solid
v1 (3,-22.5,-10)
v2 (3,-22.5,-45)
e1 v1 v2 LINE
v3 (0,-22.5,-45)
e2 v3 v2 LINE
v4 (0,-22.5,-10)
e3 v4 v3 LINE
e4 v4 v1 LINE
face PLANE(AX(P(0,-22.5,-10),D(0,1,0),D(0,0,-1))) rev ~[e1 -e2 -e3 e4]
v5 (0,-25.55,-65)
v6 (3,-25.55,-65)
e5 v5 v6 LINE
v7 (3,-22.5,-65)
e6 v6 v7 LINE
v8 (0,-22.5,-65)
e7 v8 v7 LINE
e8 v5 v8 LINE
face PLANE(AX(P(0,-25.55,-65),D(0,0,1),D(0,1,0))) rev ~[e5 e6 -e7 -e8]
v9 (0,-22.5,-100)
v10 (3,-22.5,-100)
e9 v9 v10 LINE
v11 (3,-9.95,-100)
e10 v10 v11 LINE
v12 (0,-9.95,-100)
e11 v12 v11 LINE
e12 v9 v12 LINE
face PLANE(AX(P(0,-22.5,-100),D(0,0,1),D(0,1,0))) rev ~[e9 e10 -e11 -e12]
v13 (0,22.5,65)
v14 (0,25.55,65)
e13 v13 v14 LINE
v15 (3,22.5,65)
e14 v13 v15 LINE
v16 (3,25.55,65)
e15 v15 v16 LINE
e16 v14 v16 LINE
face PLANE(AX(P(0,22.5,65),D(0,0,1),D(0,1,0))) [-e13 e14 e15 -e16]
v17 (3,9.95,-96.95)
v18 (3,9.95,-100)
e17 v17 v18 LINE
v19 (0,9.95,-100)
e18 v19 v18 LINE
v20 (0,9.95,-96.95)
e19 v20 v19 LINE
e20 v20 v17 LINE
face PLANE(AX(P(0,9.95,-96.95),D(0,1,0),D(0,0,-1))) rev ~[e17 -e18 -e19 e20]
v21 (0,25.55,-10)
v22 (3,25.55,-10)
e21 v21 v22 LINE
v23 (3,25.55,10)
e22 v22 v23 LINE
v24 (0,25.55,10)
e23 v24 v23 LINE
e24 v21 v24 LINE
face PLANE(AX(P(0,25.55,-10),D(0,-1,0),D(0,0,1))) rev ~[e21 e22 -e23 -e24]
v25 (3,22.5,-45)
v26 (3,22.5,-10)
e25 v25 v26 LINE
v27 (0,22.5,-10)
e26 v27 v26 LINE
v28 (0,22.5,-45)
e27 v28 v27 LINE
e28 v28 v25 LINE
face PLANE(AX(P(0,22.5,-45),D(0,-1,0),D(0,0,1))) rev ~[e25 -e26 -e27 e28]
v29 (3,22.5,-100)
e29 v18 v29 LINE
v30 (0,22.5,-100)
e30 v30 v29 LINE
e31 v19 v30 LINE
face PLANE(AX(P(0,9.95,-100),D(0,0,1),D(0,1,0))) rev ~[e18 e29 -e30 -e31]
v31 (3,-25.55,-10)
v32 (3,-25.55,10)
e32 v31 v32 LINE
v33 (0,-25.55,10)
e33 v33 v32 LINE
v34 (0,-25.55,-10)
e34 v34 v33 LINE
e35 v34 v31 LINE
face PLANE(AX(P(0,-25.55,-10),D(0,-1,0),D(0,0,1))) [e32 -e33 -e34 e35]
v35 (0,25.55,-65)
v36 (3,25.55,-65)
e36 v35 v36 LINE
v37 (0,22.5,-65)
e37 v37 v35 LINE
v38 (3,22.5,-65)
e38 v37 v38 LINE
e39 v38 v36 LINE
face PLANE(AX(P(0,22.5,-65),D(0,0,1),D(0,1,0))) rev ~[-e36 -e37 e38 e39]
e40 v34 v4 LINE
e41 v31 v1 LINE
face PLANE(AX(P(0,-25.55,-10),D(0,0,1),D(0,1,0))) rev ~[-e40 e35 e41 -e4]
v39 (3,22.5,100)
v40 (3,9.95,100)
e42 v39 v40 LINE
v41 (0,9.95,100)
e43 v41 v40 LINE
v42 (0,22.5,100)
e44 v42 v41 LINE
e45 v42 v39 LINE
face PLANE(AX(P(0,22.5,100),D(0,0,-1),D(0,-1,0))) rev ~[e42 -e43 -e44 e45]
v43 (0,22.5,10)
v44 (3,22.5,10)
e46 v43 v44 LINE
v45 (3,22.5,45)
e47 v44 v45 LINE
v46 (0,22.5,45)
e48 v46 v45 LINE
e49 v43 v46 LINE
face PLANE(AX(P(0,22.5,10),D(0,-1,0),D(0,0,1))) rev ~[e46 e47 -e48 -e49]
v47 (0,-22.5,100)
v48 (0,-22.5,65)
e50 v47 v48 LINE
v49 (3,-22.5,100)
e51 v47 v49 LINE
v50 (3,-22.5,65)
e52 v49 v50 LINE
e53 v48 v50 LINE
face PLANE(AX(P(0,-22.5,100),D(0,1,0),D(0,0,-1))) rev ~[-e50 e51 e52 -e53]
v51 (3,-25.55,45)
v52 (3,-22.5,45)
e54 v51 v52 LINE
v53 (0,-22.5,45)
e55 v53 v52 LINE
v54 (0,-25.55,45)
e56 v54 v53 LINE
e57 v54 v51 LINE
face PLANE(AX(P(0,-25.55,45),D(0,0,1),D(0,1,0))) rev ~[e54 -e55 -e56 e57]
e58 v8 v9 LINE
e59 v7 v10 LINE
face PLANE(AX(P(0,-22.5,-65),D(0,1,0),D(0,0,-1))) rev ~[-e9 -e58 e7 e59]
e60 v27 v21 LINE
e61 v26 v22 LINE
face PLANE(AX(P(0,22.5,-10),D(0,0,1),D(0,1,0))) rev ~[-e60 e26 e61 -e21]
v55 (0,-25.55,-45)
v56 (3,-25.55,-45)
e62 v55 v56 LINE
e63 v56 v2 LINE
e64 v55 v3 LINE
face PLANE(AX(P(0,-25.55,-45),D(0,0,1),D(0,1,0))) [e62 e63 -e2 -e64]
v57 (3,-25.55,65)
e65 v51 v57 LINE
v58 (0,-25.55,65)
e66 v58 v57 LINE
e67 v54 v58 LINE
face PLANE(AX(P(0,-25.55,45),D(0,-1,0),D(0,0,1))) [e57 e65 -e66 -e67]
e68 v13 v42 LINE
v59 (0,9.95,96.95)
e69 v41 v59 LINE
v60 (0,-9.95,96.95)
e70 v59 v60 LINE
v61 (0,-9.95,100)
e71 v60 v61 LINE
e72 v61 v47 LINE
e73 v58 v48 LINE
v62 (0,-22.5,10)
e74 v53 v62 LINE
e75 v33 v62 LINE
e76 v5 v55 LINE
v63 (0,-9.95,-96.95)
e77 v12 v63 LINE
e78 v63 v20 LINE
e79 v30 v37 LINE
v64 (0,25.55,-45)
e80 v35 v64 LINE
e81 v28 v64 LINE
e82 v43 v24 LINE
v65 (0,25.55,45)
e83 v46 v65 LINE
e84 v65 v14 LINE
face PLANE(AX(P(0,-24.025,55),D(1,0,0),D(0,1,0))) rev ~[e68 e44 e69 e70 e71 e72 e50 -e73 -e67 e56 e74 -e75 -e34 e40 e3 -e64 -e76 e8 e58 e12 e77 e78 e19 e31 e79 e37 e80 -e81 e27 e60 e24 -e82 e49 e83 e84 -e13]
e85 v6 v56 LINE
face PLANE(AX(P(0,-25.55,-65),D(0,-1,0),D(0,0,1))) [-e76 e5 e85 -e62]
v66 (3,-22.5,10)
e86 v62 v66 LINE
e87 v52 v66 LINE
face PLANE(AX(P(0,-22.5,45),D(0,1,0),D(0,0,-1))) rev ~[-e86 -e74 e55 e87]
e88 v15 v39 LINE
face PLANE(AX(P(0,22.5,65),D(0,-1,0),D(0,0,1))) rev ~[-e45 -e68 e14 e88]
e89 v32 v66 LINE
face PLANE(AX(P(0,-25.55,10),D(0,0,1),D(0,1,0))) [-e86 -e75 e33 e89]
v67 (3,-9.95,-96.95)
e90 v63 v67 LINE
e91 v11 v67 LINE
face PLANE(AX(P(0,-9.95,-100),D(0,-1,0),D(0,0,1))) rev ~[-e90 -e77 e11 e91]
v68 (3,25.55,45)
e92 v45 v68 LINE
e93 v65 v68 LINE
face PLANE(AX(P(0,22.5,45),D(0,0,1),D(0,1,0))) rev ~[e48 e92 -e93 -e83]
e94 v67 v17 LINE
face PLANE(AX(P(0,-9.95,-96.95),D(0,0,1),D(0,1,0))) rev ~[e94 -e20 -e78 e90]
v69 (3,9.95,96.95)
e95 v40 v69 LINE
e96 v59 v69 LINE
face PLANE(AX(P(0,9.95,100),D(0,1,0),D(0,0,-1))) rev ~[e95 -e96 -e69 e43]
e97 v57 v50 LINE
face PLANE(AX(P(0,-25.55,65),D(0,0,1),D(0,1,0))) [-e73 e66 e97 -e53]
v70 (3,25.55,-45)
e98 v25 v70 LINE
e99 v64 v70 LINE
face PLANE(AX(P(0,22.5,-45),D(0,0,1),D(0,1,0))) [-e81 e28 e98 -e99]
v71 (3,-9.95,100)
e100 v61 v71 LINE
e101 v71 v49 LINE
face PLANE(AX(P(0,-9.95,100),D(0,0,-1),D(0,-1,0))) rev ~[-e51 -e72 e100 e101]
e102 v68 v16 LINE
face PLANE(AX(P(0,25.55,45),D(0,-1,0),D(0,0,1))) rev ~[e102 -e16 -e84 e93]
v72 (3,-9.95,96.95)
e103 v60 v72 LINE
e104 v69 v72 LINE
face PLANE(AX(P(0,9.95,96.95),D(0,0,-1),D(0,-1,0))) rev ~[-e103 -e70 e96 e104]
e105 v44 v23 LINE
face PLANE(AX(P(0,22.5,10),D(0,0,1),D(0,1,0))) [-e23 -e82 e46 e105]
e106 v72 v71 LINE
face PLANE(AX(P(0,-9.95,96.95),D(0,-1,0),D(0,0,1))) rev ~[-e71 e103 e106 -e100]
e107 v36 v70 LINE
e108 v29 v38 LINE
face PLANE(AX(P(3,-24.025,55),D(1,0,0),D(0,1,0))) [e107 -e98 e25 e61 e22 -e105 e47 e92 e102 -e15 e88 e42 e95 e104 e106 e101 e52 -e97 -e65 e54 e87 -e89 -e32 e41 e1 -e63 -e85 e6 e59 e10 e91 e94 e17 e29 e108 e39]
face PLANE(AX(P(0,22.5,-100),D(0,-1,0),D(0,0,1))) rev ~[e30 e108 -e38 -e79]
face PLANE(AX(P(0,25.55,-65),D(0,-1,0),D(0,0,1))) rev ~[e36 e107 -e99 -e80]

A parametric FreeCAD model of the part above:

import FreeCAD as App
import Part
import Sketcher

V = App.Vector
Q = App.Units.Quantity

doc = App.newDocument("Part")
body = doc.addObject("PartDesign::Body", "Body")

sketch1 = body.newObject("Sketcher::SketchObject", "Sketch")
sketch1.AttachmentSupport = (doc.getObject("YZ_Plane"), [""])
sketch1.MapMode = "FlatFace"
sketch1.addGeometry(Part.LineSegment(V(-25.6, 65, 0), V(-25.6, 45, 0)), False)
sketch1.addGeometry(Part.LineSegment(V(-25.6, 45, 0), V(-22.5, 45, 0)), False)
sketch1.addGeometry(Part.LineSegment(V(-22.5, 45, 0), V(-22.5, 10, 0)), False)
sketch1.addGeometry(Part.LineSegment(V(-22.5, 10, 0), V(-25.6, 10, 0)), False)
sketch1.addGeometry(Part.LineSegment(V(-25.6, 10, 0), V(-25.6, -10, 0)), False)
sketch1.addGeometry(Part.LineSegment(V(-25.6, -10, 0), V(-22.5, -10, 0)), False)
sketch1.addGeometry(Part.LineSegment(V(-22.5, -10, 0), V(-22.5, -45, 0)), False)
sketch1.addGeometry(Part.LineSegment(V(-22.5, -45, 0), V(-25.6, -45, 0)), False)
sketch1.addGeometry(Part.LineSegment(V(-25.6, -45, 0), V(-25.6, -65, 0)), False)
sketch1.addGeometry(Part.LineSegment(V(-25.6, -65, 0), V(-22.5, -65, 0)), False)
sketch1.addGeometry(Part.LineSegment(V(-22.5, -65, 0), V(-22.5, -100, 0)), False)
sketch1.addGeometry(Part.LineSegment(V(-22.5, -100, 0), V(-9.9, -100, 0)), False)
sketch1.addGeometry(Part.LineSegment(V(-9.9, -100, 0), V(-9.9, -97, 0)), False)
sketch1.addGeometry(Part.LineSegment(V(-9.9, -97, 0), V(9.9, -97, 0)), False)
sketch1.addGeometry(Part.LineSegment(V(9.9, -97, 0), V(9.9, -100, 0)), False)
sketch1.addGeometry(Part.LineSegment(V(9.9, -100, 0), V(22.5, -100, 0)), False)
sketch1.addGeometry(Part.LineSegment(V(22.5, -100, 0), V(22.5, -65, 0)), False)
sketch1.addGeometry(Part.LineSegment(V(22.5, -65, 0), V(25.6, -65, 0)), False)
sketch1.addGeometry(Part.LineSegment(V(25.6, -65, 0), V(25.6, -45, 0)), False)
sketch1.addGeometry(Part.LineSegment(V(25.6, -45, 0), V(22.5, -45, 0)), False)
sketch1.addGeometry(Part.LineSegment(V(22.5, -45, 0), V(22.5, -10, 0)), False)
sketch1.addGeometry(Part.LineSegment(V(22.5, -10, 0), V(25.6, -10, 0)), False)
sketch1.addGeometry(Part.LineSegment(V(25.6, -10, 0), V(25.6, 10, 0)), False)
sketch1.addGeometry(Part.LineSegment(V(25.6, 10, 0), V(22.5, 10, 0)), False)
sketch1.addGeometry(Part.LineSegment(V(22.5, 10, 0), V(22.5, 45, 0)), False)
sketch1.addGeometry(Part.LineSegment(V(22.5, 45, 0), V(25.6, 45, 0)), False)
sketch1.addGeometry(Part.LineSegment(V(25.6, 45, 0), V(25.6, 65, 0)), False)
sketch1.addGeometry(Part.LineSegment(V(25.6, 65, 0), V(22.5, 65, 0)), False)
sketch1.addGeometry(Part.LineSegment(V(22.5, 65, 0), V(22.5, 100, 0)), False)
sketch1.addGeometry(Part.LineSegment(V(22.5, 100, 0), V(9.9, 100, 0)), False)
sketch1.addGeometry(Part.LineSegment(V(9.9, 100, 0), V(9.9, 97, 0)), False)
sketch1.addGeometry(Part.LineSegment(V(9.9, 97, 0), V(-9.9, 97, 0)), False)
sketch1.addGeometry(Part.LineSegment(V(-9.9, 97, 0), V(-9.9, 100, 0)), False)
sketch1.addGeometry(Part.LineSegment(V(-9.9, 100, 0), V(-22.5, 100, 0)), False)
sketch1.addGeometry(Part.LineSegment(V(-22.5, 100, 0), V(-22.5, 65, 0)), False)
sketch1.addGeometry(Part.LineSegment(V(-22.5, 65, 0), V(-25.6, 65, 0)), False)
sketch1.addConstraint(Sketcher.Constraint("Coincident", 0, 2, 1, 1))
sketch1.addConstraint(Sketcher.Constraint("Coincident", 1, 2, 2, 1))
sketch1.addConstraint(Sketcher.Constraint("Coincident", 2, 2, 3, 1))
sketch1.addConstraint(Sketcher.Constraint("Coincident", 3, 2, 4, 1))
sketch1.addConstraint(Sketcher.Constraint("Coincident", 4, 2, 5, 1))
sketch1.addConstraint(Sketcher.Constraint("Coincident", 5, 2, 6, 1))
sketch1.addConstraint(Sketcher.Constraint("Coincident", 6, 2, 7, 1))
sketch1.addConstraint(Sketcher.Constraint("Coincident", 7, 2, 8, 1))
sketch1.addConstraint(Sketcher.Constraint("Coincident", 8, 2, 9, 1))
sketch1.addConstraint(Sketcher.Constraint("Coincident", 9, 2, 10, 1))
sketch1.addConstraint(Sketcher.Constraint("Coincident", 10, 2, 11, 1))
sketch1.addConstraint(Sketcher.Constraint("Coincident", 11, 2, 12, 1))
sketch1.addConstraint(Sketcher.Constraint("Coincident", 12, 2, 13, 1))
sketch1.addConstraint(Sketcher.Constraint("Coincident", 13, 2, 14, 1))
sketch1.addConstraint(Sketcher.Constraint("Coincident", 14, 2, 15, 1))
sketch1.addConstraint(Sketcher.Constraint("Coincident", 15, 2, 16, 1))
sketch1.addConstraint(Sketcher.Constraint("Coincident", 16, 2, 17, 1))
sketch1.addConstraint(Sketcher.Constraint("Coincident", 17, 2, 18, 1))
sketch1.addConstraint(Sketcher.Constraint("Coincident", 18, 2, 19, 1))
sketch1.addConstraint(Sketcher.Constraint("Coincident", 19, 2, 20, 1))
sketch1.addConstraint(Sketcher.Constraint("Coincident", 20, 2, 21, 1))
sketch1.addConstraint(Sketcher.Constraint("Coincident", 21, 2, 22, 1))
sketch1.addConstraint(Sketcher.Constraint("Coincident", 22, 2, 23, 1))
sketch1.addConstraint(Sketcher.Constraint("Coincident", 23, 2, 24, 1))
sketch1.addConstraint(Sketcher.Constraint("Coincident", 24, 2, 25, 1))
sketch1.addConstraint(Sketcher.Constraint("Coincident", 25, 2, 26, 1))
sketch1.addConstraint(Sketcher.Constraint("Coincident", 26, 2, 27, 1))
sketch1.addConstraint(Sketcher.Constraint("Coincident", 27, 2, 28, 1))
sketch1.addConstraint(Sketcher.Constraint("Coincident", 28, 2, 29, 1))
sketch1.addConstraint(Sketcher.Constraint("Coincident", 29, 2, 30, 1))
sketch1.addConstraint(Sketcher.Constraint("Coincident", 30, 2, 31, 1))
sketch1.addConstraint(Sketcher.Constraint("Coincident", 31, 2, 32, 1))
sketch1.addConstraint(Sketcher.Constraint("Coincident", 32, 2, 33, 1))
sketch1.addConstraint(Sketcher.Constraint("Coincident", 33, 2, 34, 1))
sketch1.addConstraint(Sketcher.Constraint("Coincident", 34, 2, 35, 1))
sketch1.addConstraint(Sketcher.Constraint("Coincident", 35, 2, 0, 1))
sketch1.addConstraint(Sketcher.Constraint("Vertical", 0))
sketch1.addConstraint(Sketcher.Constraint("Horizontal", 1))
sketch1.addConstraint(Sketcher.Constraint("Vertical", 2))
sketch1.addConstraint(Sketcher.Constraint("Horizontal", 3))
sketch1.addConstraint(Sketcher.Constraint("Vertical", 4))
sketch1.addConstraint(Sketcher.Constraint("Horizontal", 5))
sketch1.addConstraint(Sketcher.Constraint("Vertical", 6))
sketch1.addConstraint(Sketcher.Constraint("Horizontal", 7))
sketch1.addConstraint(Sketcher.Constraint("Vertical", 8))
sketch1.addConstraint(Sketcher.Constraint("Horizontal", 9))
sketch1.addConstraint(Sketcher.Constraint("Vertical", 10))
sketch1.addConstraint(Sketcher.Constraint("Horizontal", 11))
sketch1.addConstraint(Sketcher.Constraint("Vertical", 12))
sketch1.addConstraint(Sketcher.Constraint("Horizontal", 13))
sketch1.addConstraint(Sketcher.Constraint("Vertical", 14))
sketch1.addConstraint(Sketcher.Constraint("Horizontal", 15))
sketch1.addConstraint(Sketcher.Constraint("Vertical", 16))
sketch1.addConstraint(Sketcher.Constraint("Horizontal", 17))
sketch1.addConstraint(Sketcher.Constraint("Vertical", 18))
sketch1.addConstraint(Sketcher.Constraint("Horizontal", 19))
sketch1.addConstraint(Sketcher.Constraint("Vertical", 20))
sketch1.addConstraint(Sketcher.Constraint("Horizontal", 21))
sketch1.addConstraint(Sketcher.Constraint("Vertical", 22))
sketch1.addConstraint(Sketcher.Constraint("Horizontal", 23))
sketch1.addConstraint(Sketcher.Constraint("Vertical", 24))
sketch1.addConstraint(Sketcher.Constraint("Horizontal", 25))
sketch1.addConstraint(Sketcher.Constraint("Vertical", 26))
sketch1.addConstraint(Sketcher.Constraint("Horizontal", 27))
sketch1.addConstraint(Sketcher.Constraint("Vertical", 28))
sketch1.addConstraint(Sketcher.Constraint("Horizontal", 29))
sketch1.addConstraint(Sketcher.Constraint("Vertical", 30))
sketch1.addConstraint(Sketcher.Constraint("Horizontal", 31))
sketch1.addConstraint(Sketcher.Constraint("Vertical", 32))
sketch1.addConstraint(Sketcher.Constraint("Horizontal", 33))
sketch1.addConstraint(Sketcher.Constraint("Vertical", 34))
sketch1.addConstraint(Sketcher.Constraint("Horizontal", 35))
sketch1.addConstraint(Sketcher.Constraint("Symmetric", 0, 2, 18, 2, -1, 1))
sketch1.addConstraint(Sketcher.Constraint("Symmetric", 2, 2, 20, 2, -1, 1))
sketch1.addConstraint(Sketcher.Constraint("Symmetric", 4, 2, 22, 2, -1, 1))
sketch1.addConstraint(Sketcher.Constraint("Symmetric", 6, 2, 24, 2, -1, 1))
sketch1.addConstraint(Sketcher.Constraint("Symmetric", 8, 2, 26, 2, -1, 1))
sketch1.addConstraint(Sketcher.Constraint("Symmetric", 10, 2, 28, 2, -1, 1))
sketch1.addConstraint(Sketcher.Constraint("Symmetric", 12, 2, 30, 2, -1, 1))
sketch1.addConstraint(Sketcher.Constraint("Symmetric", 14, 2, 32, 2, -1, 1))
sketch1.addConstraint(Sketcher.Constraint("Symmetric", 16, 2, 34, 2, -1, 1))
sketch1.addConstraint(Sketcher.Constraint("Symmetric", 11, 2, 14, 2, -2))
sketch1.addConstraint(Sketcher.Constraint("Symmetric", 9, 2, 16, 2, -2))
sketch1.addConstraint(Sketcher.Constraint("Symmetric", 7, 2, 18, 2, -2))
sketch1.addConstraint(Sketcher.Constraint("Symmetric", 5, 2, 20, 2, -2))
sketch1.addConstraint(Sketcher.Constraint("Vertical", 0, 2, 3, 2))
sketch1.addConstraint(Sketcher.Constraint("Vertical", 6, 2, 9, 2))
sketch1.addConstraint(Sketcher.Constraint("Equal", 0, 4))
sketch1.addConstraint(Sketcher.Constraint("Equal", 6, 10))
sketch1.addConstraint(Sketcher.Constraint("Equal", 35, 12))
sketch1.addConstraint(Sketcher.Constraint("DistanceY", 0, 2, 0, 1, Q("20 mm")))
sketch1.addConstraint(Sketcher.Constraint("DistanceY", 2, 2, 2, 1, Q("35 mm")))
sketch1.addConstraint(Sketcher.Constraint("DistanceX", 13, 1, 13, 2, Q("19.9 mm")))
sketch1.addConstraint(Sketcher.Constraint("DistanceX", 10, 2, 15, 2, Q("45 mm")))
sketch1.addConstraint(Sketcher.Constraint("DistanceX", 1, 1, 1, 2, Q("3.05 mm")))
pad1 = body.newObject("PartDesign::Pad", "Pad")
pad1.Profile = sketch1
pad1.Length = 3

doc.recompute()
